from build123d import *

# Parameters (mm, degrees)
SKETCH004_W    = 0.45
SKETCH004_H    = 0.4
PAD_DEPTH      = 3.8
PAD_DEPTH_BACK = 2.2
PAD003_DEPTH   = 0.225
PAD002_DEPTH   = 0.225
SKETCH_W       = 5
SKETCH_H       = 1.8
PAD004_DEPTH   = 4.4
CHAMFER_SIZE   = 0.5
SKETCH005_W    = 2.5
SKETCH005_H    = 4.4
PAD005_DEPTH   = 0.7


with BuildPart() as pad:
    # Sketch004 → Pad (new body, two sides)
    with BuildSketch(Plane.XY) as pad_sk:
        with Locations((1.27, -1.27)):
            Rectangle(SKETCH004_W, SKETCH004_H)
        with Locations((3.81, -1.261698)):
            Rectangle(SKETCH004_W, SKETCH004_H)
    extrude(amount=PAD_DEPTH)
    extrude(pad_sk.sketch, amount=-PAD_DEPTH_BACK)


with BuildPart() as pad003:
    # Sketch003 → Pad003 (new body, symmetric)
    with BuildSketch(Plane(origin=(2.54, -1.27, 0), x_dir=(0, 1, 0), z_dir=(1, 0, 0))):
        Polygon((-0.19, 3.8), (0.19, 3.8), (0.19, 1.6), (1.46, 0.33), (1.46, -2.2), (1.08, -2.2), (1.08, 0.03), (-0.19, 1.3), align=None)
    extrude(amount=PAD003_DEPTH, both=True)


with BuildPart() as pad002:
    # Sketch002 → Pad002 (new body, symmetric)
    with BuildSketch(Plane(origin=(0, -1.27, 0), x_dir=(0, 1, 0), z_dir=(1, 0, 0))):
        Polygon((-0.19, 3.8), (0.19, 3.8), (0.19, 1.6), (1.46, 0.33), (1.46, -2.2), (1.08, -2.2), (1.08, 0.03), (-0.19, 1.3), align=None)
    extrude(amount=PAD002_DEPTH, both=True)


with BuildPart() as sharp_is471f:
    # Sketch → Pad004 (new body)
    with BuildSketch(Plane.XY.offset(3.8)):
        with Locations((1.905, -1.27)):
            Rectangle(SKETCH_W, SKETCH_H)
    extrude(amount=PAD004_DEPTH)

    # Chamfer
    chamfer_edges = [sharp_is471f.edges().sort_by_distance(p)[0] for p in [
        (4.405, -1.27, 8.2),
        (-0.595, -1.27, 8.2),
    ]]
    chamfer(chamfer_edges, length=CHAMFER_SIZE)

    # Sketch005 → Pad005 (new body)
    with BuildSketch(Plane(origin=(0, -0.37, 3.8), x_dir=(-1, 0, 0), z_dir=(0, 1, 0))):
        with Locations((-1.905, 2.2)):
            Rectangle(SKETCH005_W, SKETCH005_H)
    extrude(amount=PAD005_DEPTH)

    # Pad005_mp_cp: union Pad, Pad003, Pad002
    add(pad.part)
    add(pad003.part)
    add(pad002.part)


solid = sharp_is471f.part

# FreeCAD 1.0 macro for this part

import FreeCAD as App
import Part
import Sketcher
Q = App.Units.Quantity


def edges_at(feature, points):
    """Names of the edges that pass closest to the given points."""
    edges = feature.Shape.Edges
    near = lambda p: min(range(len(edges)), key=lambda i: edges[i].distToShape(Part.Vertex(*p))[0])
    return sorted({f"Edge{near(p) + 1}" for p in points})


def add_polygon(sketch, points):
    """Adds a closed chain of lines whose ends are joined by coincident constraints."""
    first, n = sketch.GeometryCount, len(points)
    for a, b in zip(points, points[1:] + points[:1]):
        sketch.addGeometry(Part.LineSegment(App.Vector(*a, 0), App.Vector(*b, 0)), False)
    for i in range(n):
        sketch.addConstraint(Sketcher.Constraint("Coincident", first + i, 2, first + (i + 1) % n, 1))

doc = App.newDocument("Part")
body = doc.addObject("PartDesign::Body", "Body")
body.AllowCompound = True

# Sketch on XY plane
sketch1 = body.newObject("Sketcher::SketchObject", "Sketch")
sketch1.AttachmentSupport = (doc.getObject("XY_Plane"), [""])
sketch1.MapMode = "FlatFace"
add_polygon(sketch1, [(1.04, -1.07), (1.04, -1.47), (1.5, -1.47), (1.5, -1.07)])  # lines 0-3
add_polygon(sketch1, [(3.58, -1.06), (3.58, -1.46), (4.04, -1.46), (4.04, -1.06)])  # lines 4-7
sketch1.addConstraint(Sketcher.Constraint("Vertical", 0))
sketch1.addConstraint(Sketcher.Constraint("Horizontal", 1))
sketch1.addConstraint(Sketcher.Constraint("Vertical", 2))
sketch1.addConstraint(Sketcher.Constraint("Horizontal", 3))
sketch1.addConstraint(Sketcher.Constraint("Vertical", 4))
sketch1.addConstraint(Sketcher.Constraint("Horizontal", 5))
sketch1.addConstraint(Sketcher.Constraint("Vertical", 6))
sketch1.addConstraint(Sketcher.Constraint("Horizontal", 7))
sketch1.addConstraint(Sketcher.Constraint("Equal", 3, 5))
sketch1.addConstraint(Sketcher.Constraint("Equal", 2, 4))
sketch1.addConstraint(Sketcher.Constraint("DistanceY", 0, 2, 0, 1, 0.4))
sketch1.addConstraint(Sketcher.Constraint("DistanceX", 1, 1, 1, 2, 0.45))
sketch1.addConstraint(Sketcher.Constraint("DistanceY", 0, 2, -1, 1, 1.47))
sketch1.addConstraint(Sketcher.Constraint("DistanceX", 1, 2, 4, 2, 2.09))
sketch1.addConstraint(Sketcher.Constraint("DistanceX", -1, 1, 0, 2, 1.045))
sketch1.addConstraint(Sketcher.Constraint("DistanceY", 1, 2, 6, 2, 0.408302))
pad1 = body.newObject("PartDesign::Pad", "Pad")
pad1.Profile = sketch1
pad1.Type = "TwoLengths"
pad1.Length = 3.8
pad1.Length2 = 2.2
body2 = doc.addObject("PartDesign::Body", "Body001")

# Sketch on YZ plane
sketch2 = body2.newObject("Sketcher::SketchObject", "Sketch001")
sketch2.AttachmentSupport = (doc.getObject("YZ_Plane001"), [""])
sketch2.MapMode = "FlatFace"
sketch2.AttachmentOffset = App.Placement(App.Vector(0, 0, 2.54), App.Rotation())
add_polygon(sketch2, [(-1.08, 3.8), (-1.46, 3.8), (-1.46, 1.3), (-0.19, 0.03), (-0.19, -2.2), (0.19, -2.2), (0.19, 0.33), (-1.08, 1.6)])  # lines 0-7
sketch2.addConstraint(Sketcher.Constraint("Horizontal", 0))
sketch2.addConstraint(Sketcher.Constraint("Vertical", 1))
sketch2.addConstraint(Sketcher.Constraint("Vertical", 3))
sketch2.addConstraint(Sketcher.Constraint("Horizontal", 4))
sketch2.addConstraint(Sketcher.Constraint("Vertical", 5))
sketch2.addConstraint(Sketcher.Constraint("Vertical", 7))
sketch2.addConstraint(Sketcher.Constraint("Parallel", 2, 6))
sketch2.addConstraint(Sketcher.Constraint("Equal", 0, 4))
sketch2.addConstraint(Sketcher.Constraint("Angle", 2, Q("-45 deg")))
sketch2.addConstraint(Sketcher.Constraint("DistanceY", 1, 2, 1, 1, 2.5))
sketch2.addConstraint(Sketcher.Constraint("DistanceY", 7, 1, 7, 2, 2.2))
sketch2.addConstraint(Sketcher.Constraint("DistanceY", 3, 2, 0, 2, 6.0))
sketch2.addConstraint(Sketcher.Constraint("DistanceX", 0, 2, 0, 1, 0.38))
sketch2.addConstraint(Sketcher.Constraint("DistanceY", 3, 2, 3, 1, 2.23))
sketch2.addConstraint(Sketcher.Constraint("DistanceY", -1, 1, 0, 2, 3.8))
sketch2.addConstraint(Sketcher.Constraint("DistanceX", 0, 2, -1, 1, 1.46))
pad2 = body2.newObject("PartDesign::Pad", "Pad001")
pad2.Profile = sketch2
pad2.Length = 0.45
pad2.Midplane = True
body3 = doc.addObject("PartDesign::Body", "Body002")

# Sketch on YZ plane
sketch3 = body3.newObject("Sketcher::SketchObject", "Sketch002")
sketch3.AttachmentSupport = (doc.getObject("YZ_Plane002"), [""])
sketch3.MapMode = "FlatFace"
add_polygon(sketch3, [(-1.08, 3.8), (-1.46, 3.8), (-1.46, 1.3), (-0.19, 0.03), (-0.19, -2.2), (0.19, -2.2), (0.19, 0.33), (-1.08, 1.6)])  # lines 0-7
sketch3.addConstraint(Sketcher.Constraint("Horizontal", 0))
sketch3.addConstraint(Sketcher.Constraint("Vertical", 1))
sketch3.addConstraint(Sketcher.Constraint("Vertical", 3))
sketch3.addConstraint(Sketcher.Constraint("Horizontal", 4))
sketch3.addConstraint(Sketcher.Constraint("Vertical", 5))
sketch3.addConstraint(Sketcher.Constraint("Vertical", 7))
sketch3.addConstraint(Sketcher.Constraint("Parallel", 2, 6))
sketch3.addConstraint(Sketcher.Constraint("Equal", 0, 4))
sketch3.addConstraint(Sketcher.Constraint("Angle", 2, Q("-45 deg")))
sketch3.addConstraint(Sketcher.Constraint("DistanceY", 1, 2, 1, 1, 2.5))
sketch3.addConstraint(Sketcher.Constraint("DistanceY", 7, 1, 7, 2, 2.2))
sketch3.addConstraint(Sketcher.Constraint("DistanceY", 3, 2, 0, 2, 6.0))
sketch3.addConstraint(Sketcher.Constraint("DistanceX", 0, 2, 0, 1, 0.38))
sketch3.addConstraint(Sketcher.Constraint("DistanceY", 3, 2, 3, 1, 2.23))
sketch3.addConstraint(Sketcher.Constraint("DistanceY", -1, 1, 0, 2, 3.8))
sketch3.addConstraint(Sketcher.Constraint("DistanceX", 0, 2, -1, 1, 1.46))
pad3 = body3.newObject("PartDesign::Pad", "Pad002")
pad3.Profile = sketch3
pad3.Length = 0.45
pad3.Midplane = True
body4 = doc.addObject("PartDesign::Body", "Body003")

# Sketch on XY plane
sketch4 = body4.newObject("Sketcher::SketchObject", "Sketch003")
sketch4.AttachmentSupport = (doc.getObject("XY_Plane003"), [""])
sketch4.MapMode = "FlatFace"
sketch4.AttachmentOffset = App.Placement(App.Vector(0, 0, 3.8), App.Rotation())
add_polygon(sketch4, [(-0.6, -0.4), (-0.6, -2.2), (4.4, -2.2), (4.4, -0.4)])  # lines 0-3
sketch4.addConstraint(Sketcher.Constraint("Vertical", 0))
sketch4.addConstraint(Sketcher.Constraint("Horizontal", 1))
sketch4.addConstraint(Sketcher.Constraint("Vertical", 2))
sketch4.addConstraint(Sketcher.Constraint("Horizontal", 3))
sketch4.addConstraint(Sketcher.Constraint("DistanceX", 1, 1, 1, 2, 5.0))
sketch4.addConstraint(Sketcher.Constraint("DistanceY", 0, 2, 0, 1, 1.8))
sketch4.addConstraint(Sketcher.Constraint("DistanceY", 0, 2, -1, 1, 2.17))
sketch4.addConstraint(Sketcher.Constraint("DistanceX", 0, 2, -1, 1, 0.595))
pad4 = body4.newObject("PartDesign::Pad", "Pad003")
pad4.Profile = sketch4
pad4.Length = 4.4
doc.recompute()

chamfer = body4.newObject("PartDesign::Chamfer", "Chamfer")
chamfer.Base = (pad4, edges_at(pad4, [(4.405, -1.27, 8.2), (-0.595, -1.27, 8.2)]))
chamfer.Size = 0.5

# Sketch on XZ plane
sketch5 = body4.newObject("Sketcher::SketchObject", "Sketch004")
sketch5.AttachmentSupport = (doc.getObject("XZ_Plane003"), [""])
sketch5.MapMode = "FlatFace"
sketch5.AttachmentOffset = App.Placement(App.Vector(0, 0, 0.37), App.Rotation())
add_polygon(sketch5, [(3.2, 8.2), (3.2, 3.8), (0.7, 3.8), (0.7, 8.2)])  # lines 0-3
sketch5.addConstraint(Sketcher.Constraint("Vertical", 0))
sketch5.addConstraint(Sketcher.Constraint("Horizontal", 1))
sketch5.addConstraint(Sketcher.Constraint("Vertical", 2))
sketch5.addConstraint(Sketcher.Constraint("Horizontal", 3))
sketch5.addConstraint(Sketcher.Constraint("DistanceX", 1, 2, 1, 1, 2.5))
sketch5.addConstraint(Sketcher.Constraint("DistanceY", 0, 2, 0, 1, 4.4))
sketch5.addConstraint(Sketcher.Constraint("DistanceY", -1, 1, 0, 2, 3.8))
sketch5.addConstraint(Sketcher.Constraint("DistanceX", -1, 1, 0, 2, 3.155))
pad5 = body4.newObject("PartDesign::Pad", "Pad004")
pad5.Profile = sketch5
pad5.Length = 0.7
pad5.Reversed = True
doc.recompute()

boolean = body4.newObject("PartDesign::Boolean", "Boolean")
boolean.Type = "Fuse"
boolean.addObjects([body])
doc.recompute()

boolean2 = body4.newObject("PartDesign::Boolean", "Boolean001")
boolean2.Type = "Fuse"
boolean2.addObjects([body2])
doc.recompute()

boolean3 = body4.newObject("PartDesign::Boolean", "Boolean002")
boolean3.Type = "Fuse"
boolean3.addObjects([body3])

doc.recompute()
